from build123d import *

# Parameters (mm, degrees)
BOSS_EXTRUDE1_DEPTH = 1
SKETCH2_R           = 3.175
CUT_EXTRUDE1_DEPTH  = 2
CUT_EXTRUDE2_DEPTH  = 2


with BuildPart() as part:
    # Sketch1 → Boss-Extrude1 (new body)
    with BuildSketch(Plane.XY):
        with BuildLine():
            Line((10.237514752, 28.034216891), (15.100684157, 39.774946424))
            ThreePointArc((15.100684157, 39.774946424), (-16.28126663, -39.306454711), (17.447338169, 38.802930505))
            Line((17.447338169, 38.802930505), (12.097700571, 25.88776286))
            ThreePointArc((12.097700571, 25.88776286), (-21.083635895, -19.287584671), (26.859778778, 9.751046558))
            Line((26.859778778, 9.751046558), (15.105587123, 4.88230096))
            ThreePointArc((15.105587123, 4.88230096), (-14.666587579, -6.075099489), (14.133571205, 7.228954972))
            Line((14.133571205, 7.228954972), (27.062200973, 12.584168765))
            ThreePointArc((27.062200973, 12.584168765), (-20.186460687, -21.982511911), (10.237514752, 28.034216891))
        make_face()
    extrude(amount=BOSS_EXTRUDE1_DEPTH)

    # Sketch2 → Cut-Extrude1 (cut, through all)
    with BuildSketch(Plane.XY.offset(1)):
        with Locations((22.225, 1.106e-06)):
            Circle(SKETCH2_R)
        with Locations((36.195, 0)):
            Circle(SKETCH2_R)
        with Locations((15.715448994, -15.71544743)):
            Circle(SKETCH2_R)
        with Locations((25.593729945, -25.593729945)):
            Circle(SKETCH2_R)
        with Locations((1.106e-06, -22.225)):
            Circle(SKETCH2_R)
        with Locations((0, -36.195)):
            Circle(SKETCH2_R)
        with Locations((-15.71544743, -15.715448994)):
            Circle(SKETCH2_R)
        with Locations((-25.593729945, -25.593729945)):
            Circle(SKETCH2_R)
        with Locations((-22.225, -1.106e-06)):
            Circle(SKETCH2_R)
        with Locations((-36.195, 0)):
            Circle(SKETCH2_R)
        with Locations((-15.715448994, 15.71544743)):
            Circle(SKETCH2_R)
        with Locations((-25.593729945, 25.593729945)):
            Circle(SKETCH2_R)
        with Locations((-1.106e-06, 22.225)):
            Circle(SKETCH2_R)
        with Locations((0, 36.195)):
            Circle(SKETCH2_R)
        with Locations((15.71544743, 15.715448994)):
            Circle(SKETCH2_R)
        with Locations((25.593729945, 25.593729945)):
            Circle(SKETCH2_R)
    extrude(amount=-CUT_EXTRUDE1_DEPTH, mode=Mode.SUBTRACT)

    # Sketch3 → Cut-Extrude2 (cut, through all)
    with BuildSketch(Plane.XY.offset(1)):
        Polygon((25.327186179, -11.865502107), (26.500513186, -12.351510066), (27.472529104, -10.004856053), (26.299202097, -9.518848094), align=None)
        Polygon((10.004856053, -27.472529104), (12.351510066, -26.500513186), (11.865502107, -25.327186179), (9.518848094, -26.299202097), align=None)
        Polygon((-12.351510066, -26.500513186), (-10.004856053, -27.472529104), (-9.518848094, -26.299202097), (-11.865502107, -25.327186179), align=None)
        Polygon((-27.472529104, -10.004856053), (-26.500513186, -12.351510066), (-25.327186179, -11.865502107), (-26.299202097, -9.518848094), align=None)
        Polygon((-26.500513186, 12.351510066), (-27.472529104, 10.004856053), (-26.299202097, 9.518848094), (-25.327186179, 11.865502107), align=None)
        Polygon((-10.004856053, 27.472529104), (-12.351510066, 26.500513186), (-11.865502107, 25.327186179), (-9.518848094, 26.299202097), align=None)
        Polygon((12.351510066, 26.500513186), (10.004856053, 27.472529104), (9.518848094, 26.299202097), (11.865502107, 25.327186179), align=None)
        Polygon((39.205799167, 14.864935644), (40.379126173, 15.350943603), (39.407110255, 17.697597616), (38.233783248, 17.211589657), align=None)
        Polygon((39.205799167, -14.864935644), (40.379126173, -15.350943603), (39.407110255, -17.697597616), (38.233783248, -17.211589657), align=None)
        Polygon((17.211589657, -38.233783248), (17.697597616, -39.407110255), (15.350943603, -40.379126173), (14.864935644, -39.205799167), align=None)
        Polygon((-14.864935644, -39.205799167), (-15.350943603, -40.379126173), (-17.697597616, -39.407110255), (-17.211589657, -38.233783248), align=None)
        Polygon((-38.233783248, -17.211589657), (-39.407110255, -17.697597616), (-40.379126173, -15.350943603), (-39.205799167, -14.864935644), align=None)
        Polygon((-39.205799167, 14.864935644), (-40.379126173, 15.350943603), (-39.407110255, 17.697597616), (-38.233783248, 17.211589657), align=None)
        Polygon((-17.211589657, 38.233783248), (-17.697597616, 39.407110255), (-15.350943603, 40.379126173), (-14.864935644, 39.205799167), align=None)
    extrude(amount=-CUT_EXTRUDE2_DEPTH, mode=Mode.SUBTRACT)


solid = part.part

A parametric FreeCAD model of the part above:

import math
import FreeCAD as App
import Part
import Sketcher

V = App.Vector
Q = App.Units.Quantity

doc = App.newDocument("Part")
body = doc.addObject("PartDesign::Body", "Body")

# Sketch on XY plane
sketch1 = body.newObject("Sketcher::SketchObject", "Sketch")
sketch1.AttachmentSupport = (doc.getObject("XY_Plane"), [""])
sketch1.MapMode = "FlatFace"
sketch1.addGeometry([
    Part.LineSegment(V(10.2, 28, 0), V(15.1, 39.8, 0)),  # 0
    Part.ArcOfCircle(Part.Circle(V(0, 0, 0), V(0, 0, 1), 42.5), math.radians(69), math.radians(426)),  # 1
    Part.LineSegment(V(17.4, 38.8, 0), V(12.1, 25.9, 0)),  # 2
    Part.ArcOfCircle(Part.Circle(V(0, 0, 0), V(0, 0, 1), 28.6), math.radians(65), math.radians(380)),  # 3
    Part.LineSegment(V(26.9, 9.8, 0), V(15.1, 4.9, 0)),  # 4
    Part.ArcOfCircle(Part.Circle(V(0, 0, 0), V(0, 0, 1), 15.9), math.radians(27), math.radians(378)),  # 5
    Part.LineSegment(V(14.1, 7.2, 0), V(27.1, 12.6, 0)),  # 6
    Part.ArcOfCircle(Part.Circle(V(0, 0, 0), V(0, 0, 1), 29.8), math.radians(70), math.radians(385)),  # 7
], False)
sketch1.addConstraint([
    Sketcher.Constraint("Coincident", 0, 2, 1, 1),
    Sketcher.Constraint("Coincident", 1, 2, 2, 1),
    Sketcher.Constraint("Coincident", 2, 2, 3, 1),
    Sketcher.Constraint("Coincident", 3, 2, 4, 1),
    Sketcher.Constraint("Coincident", 4, 2, 5, 2),
    Sketcher.Constraint("Coincident", 5, 1, 6, 1),
    Sketcher.Constraint("Coincident", 6, 2, 7, 2),
    Sketcher.Constraint("Coincident", 7, 1, 0, 1),
    Sketcher.Constraint("Coincident", 1, 3, -1, 1),
    Sketcher.Constraint("Coincident", 3, 3, -1, 1),
    Sketcher.Constraint("Coincident", 5, 3, -1, 1),
    Sketcher.Constraint("Coincident", 7, 3, -1, 1),
    Sketcher.Constraint("Parallel", 0, 2),
    Sketcher.Constraint("Parallel", 4, 6),
    Sketcher.Constraint("Radius", 1, Q("1.675 in")),
    Sketcher.Constraint("Radius", 3, Q("1.125 in")),
    Sketcher.Constraint("Radius", 5, Q("0.625 in")),
    Sketcher.Constraint("Radius", 7, Q("1.175 in")),
    Sketcher.Constraint("Angle", 0, Q("67.5 deg")),
    Sketcher.Constraint("Angle", 4, Q("-157.5 deg")),
    Sketcher.Constraint("DistanceX", -1, 1, 2, 2, 12.097701),
    Sketcher.Constraint("DistanceY", -1, 1, 4, 2, 4.882301),
    Sketcher.Constraint("DistanceX", -1, 1, 6, 2, 27.062201),
    Sketcher.Constraint("DistanceY", 5, 1, 7, 1, 20.805262),
])
pad1 = body.newObject("PartDesign::Pad", "Pad")
pad1.Profile = sketch1
pad1.Length = 1

# Sketch on XY plane
sketch2 = body.newObject("Sketcher::SketchObject", "Sketch001")
sketch2.AttachmentSupport = (doc.getObject("XY_Plane"), [""])
sketch2.MapMode = "FlatFace"
sketch2.AttachmentOffset = App.Placement(V(0, 0, 1), App.Rotation())
sketch2.addGeometry([
    Part.Circle(V(22.2, 0, 0), V(0, 0, 1), 3.2),  # 0
    Part.Circle(V(36.2, 0, 0), V(0, 0, 1), 3.2),  # 1
    Part.Circle(V(15.7, -15.7, 0), V(0, 0, 1), 3.2),  # 2
    Part.Circle(V(25.6, -25.6, 0), V(0, 0, 1), 3.2),  # 3
    Part.Circle(V(0, -22.2, 0), V(0, 0, 1), 3.2),  # 4
    Part.Circle(V(0, -36.2, 0), V(0, 0, 1), 3.2),  # 5
    Part.Circle(V(-15.7, -15.7, 0), V(0, 0, 1), 3.2),  # 6
    Part.Circle(V(-25.6, -25.6, 0), V(0, 0, 1), 3.2),  # 7
    Part.Circle(V(-22.2, 0, 0), V(0, 0, 1), 3.2),  # 8
    Part.Circle(V(-36.2, 0, 0), V(0, 0, 1), 3.2),  # 9
    Part.Circle(V(-15.7, 15.7, 0), V(0, 0, 1), 3.2),  # 10
    Part.Circle(V(-25.6, 25.6, 0), V(0, 0, 1), 3.2),  # 11
    Part.Circle(V(0, 22.2, 0), V(0, 0, 1), 3.2),  # 12
    Part.Circle(V(0, 36.2, 0), V(0, 0, 1), 3.2),  # 13
    Part.Circle(V(15.7, 15.7, 0), V(0, 0, 1), 3.2),  # 14
    Part.Circle(V(25.6, 25.6, 0), V(0, 0, 1), 3.2),  # 15
], False)
sketch2.addConstraint([
    Sketcher.Constraint("Equal", 0, 1),
    Sketcher.Constraint("Equal", 1, 2),
    Sketcher.Constraint("Equal", 2, 3),
    Sketcher.Constraint("Equal", 3, 4),
    Sketcher.Constraint("Equal", 4, 5),
    Sketcher.Constraint("Equal", 5, 6),
    Sketcher.Constraint("Equal", 6, 7),
    Sketcher.Constraint("Equal", 7, 8),
    Sketcher.Constraint("Equal", 8, 9),
    Sketcher.Constraint("Equal", 9, 10),
    Sketcher.Constraint("Equal", 10, 11),
    Sketcher.Constraint("Equal", 11, 12),
    Sketcher.Constraint("Equal", 12, 13),
    Sketcher.Constraint("Equal", 13, 14),
    Sketcher.Constraint("Equal", 14, 15),
    Sketcher.Constraint("Symmetric", 0, 3, 8, 3, -1, 1),
    Sketcher.Constraint("Symmetric", 1, 3, 9, 3, -1, 1),
    Sketcher.Constraint("Symmetric", 2, 3, 10, 3, -1, 1),
    Sketcher.Constraint("Symmetric", 3, 3, 11, 3, -1, 1),
    Sketcher.Constraint("Symmetric", 4, 3, 12, 3, -1, 1),
    Sketcher.Constraint("Symmetric", 5, 3, 13, 3, -1, 1),
    Sketcher.Constraint("Symmetric", 6, 3, 14, 3, -1, 1),
    Sketcher.Constraint("Symmetric", 7, 3, 15, 3, -1, 1),
    Sketcher.Constraint("Symmetric", 2, 3, 6, 3, -2),
    Sketcher.Constraint("Symmetric", 3, 3, 7, 3, -2),
    Sketcher.Constraint("PointOnObject", 0, 3, -1),
    Sketcher.Constraint("PointOnObject", 1, 3, -1),
    Sketcher.Constraint("PointOnObject", 4, 3, -2),
    Sketcher.Constraint("PointOnObject", 5, 3, -2),
    Sketcher.Constraint("Diameter", 0, Q("0.25 in")),
    Sketcher.Constraint("DistanceX", 0, 3, 1, 3, Q("0.55 in")),
    Sketcher.Constraint("DistanceY", 5, 3, 4, 3, Q("0.55 in")),
    Sketcher.Constraint("DistanceX", -1, 1, 0, 3, Q("0.875 in")),
    Sketcher.Constraint("DistanceY", 4, 3, -1, 1, Q("0.875 in")),
    Sketcher.Constraint("DistanceX", -1, 1, 2, 3, 15.715449),
    Sketcher.Constraint("DistanceX", -1, 1, 3, 3, 25.59373),
    Sketcher.Constraint("DistanceY", 3, 3, -1, 1, 25.59373),
    Sketcher.Constraint("DistanceY", 6, 3, -1, 1, 15.715449),
])
pocket1 = body.newObject("PartDesign::Pocket", "Pocket")
pocket1.Profile = sketch2
pocket1.Type = "ThroughAll"

# Sketch on XY plane
sketch3 = body.newObject("Sketcher::SketchObject", "Sketch002")
sketch3.AttachmentSupport = (doc.getObject("XY_Plane"), [""])
sketch3.MapMode = "FlatFace"
sketch3.AttachmentOffset = App.Placement(V(0, 0, 1), App.Rotation())
sketch3.addGeometry([
    Part.LineSegment(V(25.3, -11.9, 0), V(26.5, -12.4, 0)),  # 0
    Part.LineSegment(V(26.5, -12.4, 0), V(27.5, -10, 0)),  # 1
    Part.LineSegment(V(27.5, -10, 0), V(26.3, -9.5, 0)),  # 2
    Part.LineSegment(V(26.3, -9.5, 0), V(25.3, -11.9, 0)),  # 3
    Part.LineSegment(V(10, -27.5, 0), V(12.4, -26.5, 0)),  # 4
    Part.LineSegment(V(12.4, -26.5, 0), V(11.9, -25.3, 0)),  # 5
    Part.LineSegment(V(11.9, -25.3, 0), V(9.5, -26.3, 0)),  # 6
    Part.LineSegment(V(9.5, -26.3, 0), V(10, -27.5, 0)),  # 7
    Part.LineSegment(V(-12.4, -26.5, 0), V(-10, -27.5, 0)),  # 8
    Part.LineSegment(V(-10, -27.5, 0), V(-9.5, -26.3, 0)),  # 9
    Part.LineSegment(V(-9.5, -26.3, 0), V(-11.9, -25.3, 0)),  # 10
    Part.LineSegment(V(-11.9, -25.3, 0), V(-12.4, -26.5, 0)),  # 11
    Part.LineSegment(V(-27.5, -10, 0), V(-26.5, -12.4, 0)),  # 12
    Part.LineSegment(V(-26.5, -12.4, 0), V(-25.3, -11.9, 0)),  # 13
    Part.LineSegment(V(-25.3, -11.9, 0), V(-26.3, -9.5, 0)),  # 14
    Part.LineSegment(V(-26.3, -9.5, 0), V(-27.5, -10, 0)),  # 15
    Part.LineSegment(V(-26.5, 12.4, 0), V(-27.5, 10, 0)),  # 16
    Part.LineSegment(V(-27.5, 10, 0), V(-26.3, 9.5, 0)),  # 17
    Part.LineSegment(V(-26.3, 9.5, 0), V(-25.3, 11.9, 0)),  # 18
    Part.LineSegment(V(-25.3, 11.9, 0), V(-26.5, 12.4, 0)),  # 19
    Part.LineSegment(V(-10, 27.5, 0), V(-12.4, 26.5, 0)),  # 20
    Part.LineSegment(V(-12.4, 26.5, 0), V(-11.9, 25.3, 0)),  # 21
    Part.LineSegment(V(-11.9, 25.3, 0), V(-9.5, 26.3, 0)),  # 22
    Part.LineSegment(V(-9.5, 26.3, 0), V(-10, 27.5, 0)),  # 23
    Part.LineSegment(V(12.4, 26.5, 0), V(10, 27.5, 0)),  # 24
    Part.LineSegment(V(10, 27.5, 0), V(9.5, 26.3, 0)),  # 25
    Part.LineSegment(V(9.5, 26.3, 0), V(11.9, 25.3, 0)),  # 26
    Part.LineSegment(V(11.9, 25.3, 0), V(12.4, 26.5, 0)),  # 27
    Part.LineSegment(V(39.2, 14.9, 0), V(40.4, 15.4, 0)),  # 28
    Part.LineSegment(V(40.4, 15.4, 0), V(39.4, 17.7, 0)),  # 29
    Part.LineSegment(V(39.4, 17.7, 0), V(38.2, 17.2, 0)),  # 30
    Part.LineSegment(V(38.2, 17.2, 0), V(39.2, 14.9, 0)),  # 31
    Part.LineSegment(V(40.4, -15.4, 0), V(39.2, -14.9, 0)),  # 32
    Part.LineSegment(V(39.2, -14.9, 0), V(38.2, -17.2, 0)),  # 33
    Part.LineSegment(V(38.2, -17.2, 0), V(39.4, -17.7, 0)),  # 34
    Part.LineSegment(V(39.4, -17.7, 0), V(40.4, -15.4, 0)),  # 35
    Part.LineSegment(V(17.7, -39.4, 0), V(17.2, -38.2, 0)),  # 36
    Part.LineSegment(V(17.2, -38.2, 0), V(14.9, -39.2, 0)),  # 37
    Part.LineSegment(V(14.9, -39.2, 0), V(15.4, -40.4, 0)),  # 38
    Part.LineSegment(V(15.4, -40.4, 0), V(17.7, -39.4, 0)),  # 39
    Part.LineSegment(V(-15.4, -40.4, 0), V(-14.9, -39.2, 0)),  # 40
    Part.LineSegment(V(-14.9, -39.2, 0), V(-17.2, -38.2, 0)),  # 41
    Part.LineSegment(V(-17.2, -38.2, 0), V(-17.7, -39.4, 0)),  # 42
    Part.LineSegment(V(-17.7, -39.4, 0), V(-15.4, -40.4, 0)),  # 43
    Part.LineSegment(V(-39.4, -17.7, 0), V(-38.2, -17.2, 0)),  # 44
    Part.LineSegment(V(-38.2, -17.2, 0), V(-39.2, -14.9, 0)),  # 45
    Part.LineSegment(V(-39.2, -14.9, 0), V(-40.4, -15.4, 0)),  # 46
    Part.LineSegment(V(-40.4, -15.4, 0), V(-39.4, -17.7, 0)),  # 47
    Part.LineSegment(V(-40.4, 15.4, 0), V(-39.2, 14.9, 0)),  # 48
    Part.LineSegment(V(-39.2, 14.9, 0), V(-38.2, 17.2, 0)),  # 49
    Part.LineSegment(V(-38.2, 17.2, 0), V(-39.4, 17.7, 0)),  # 50
    Part.LineSegment(V(-39.4, 17.7, 0), V(-40.4, 15.4, 0)),  # 51
    Part.LineSegment(V(-17.7, 39.4, 0), V(-17.2, 38.2, 0)),  # 52
    Part.LineSegment(V(-17.2, 38.2, 0), V(-14.9, 39.2, 0)),  # 53
    Part.LineSegment(V(-14.9, 39.2, 0), V(-15.4, 40.4, 0)),  # 54
    Part.LineSegment(V(-15.4, 40.4, 0), V(-17.7, 39.4, 0)),  # 55
], False)
sketch3.addConstraint([
    Sketcher.Constraint("Coincident", 0, 2, 1, 1),
    Sketcher.Constraint("Coincident", 1, 2, 2, 1),
    Sketcher.Constraint("Coincident", 2, 2, 3, 1),
    Sketcher.Constraint("Coincident", 3, 2, 0, 1),
    Sketcher.Constraint("Coincident", 4, 2, 5, 1),
    Sketcher.Constraint("Coincident", 5, 2, 6, 1),
    Sketcher.Constraint("Coincident", 6, 2, 7, 1),
    Sketcher.Constraint("Coincident", 7, 2, 4, 1),
    Sketcher.Constraint("Coincident", 8, 2, 9, 1),
    Sketcher.Constraint("Coincident", 9, 2, 10, 1),
    Sketcher.Constraint("Coincident", 10, 2, 11, 1),
    Sketcher.Constraint("Coincident", 11, 2, 8, 1),
    Sketcher.Constraint("Coincident", 12, 2, 13, 1),
    Sketcher.Constraint("Coincident", 13, 2, 14, 1),
    Sketcher.Constraint("Coincident", 14, 2, 15, 1),
    Sketcher.Constraint("Coincident", 15, 2, 12, 1),
    Sketcher.Constraint("Coincident", 16, 2, 17, 1),
    Sketcher.Constraint("Coincident", 17, 2, 18, 1),
    Sketcher.Constraint("Coincident", 18, 2, 19, 1),
    Sketcher.Constraint("Coincident", 19, 2, 16, 1),
    Sketcher.Constraint("Coincident", 20, 2, 21, 1),
    Sketcher.Constraint("Coincident", 21, 2, 22, 1),
    Sketcher.Constraint("Coincident", 22, 2, 23, 1),
    Sketcher.Constraint("Coincident", 23, 2, 20, 1),
    Sketcher.Constraint("Coincident", 24, 2, 25, 1),
    Sketcher.Constraint("Coincident", 25, 2, 26, 1),
    Sketcher.Constraint("Coincident", 26, 2, 27, 1),
    Sketcher.Constraint("Coincident", 27, 2, 24, 1),
    Sketcher.Constraint("Coincident", 28, 2, 29, 1),
    Sketcher.Constraint("Coincident", 29, 2, 30, 1),
    Sketcher.Constraint("Coincident", 30, 2, 31, 1),
    Sketcher.Constraint("Coincident", 31, 2, 28, 1),
    Sketcher.Constraint("Coincident", 32, 2, 33, 1),
    Sketcher.Constraint("Coincident", 33, 2, 34, 1),
    Sketcher.Constraint("Coincident", 34, 2, 35, 1),
    Sketcher.Constraint("Coincident", 35, 2, 32, 1),
    Sketcher.Constraint("Coincident", 36, 2, 37, 1),
    Sketcher.Constraint("Coincident", 37, 2, 38, 1),
    Sketcher.Constraint("Coincident", 38, 2, 39, 1),
    Sketcher.Constraint("Coincident", 39, 2, 36, 1),
    Sketcher.Constraint("Coincident", 40, 2, 41, 1),
    Sketcher.Constraint("Coincident", 41, 2, 42, 1),
    Sketcher.Constraint("Coincident", 42, 2, 43, 1),
    Sketcher.Constraint("Coincident", 43, 2, 40, 1),
    Sketcher.Constraint("Coincident", 44, 2, 45, 1),
    Sketcher.Constraint("Coincident", 45, 2, 46, 1),
    Sketcher.Constraint("Coincident", 46, 2, 47, 1),
    Sketcher.Constraint("Coincident", 47, 2, 44, 1),
    Sketcher.Constraint("Coincident", 48, 2, 49, 1),
    Sketcher.Constraint("Coincident", 49, 2, 50, 1),
    Sketcher.Constraint("Coincident", 50, 2, 51, 1),
    Sketcher.Constraint("Coincident", 51, 2, 48, 1),
    Sketcher.Constraint("Coincident", 52, 2, 53, 1),
    Sketcher.Constraint("Coincident", 53, 2, 54, 1),
    Sketcher.Constraint("Coincident", 54, 2, 55, 1),
    Sketcher.Constraint("Coincident", 55, 2, 52, 1),
    Sketcher.Constraint("Symmetric", 1, 2, 16, 2, -1, 1),
    Sketcher.Constraint("Symmetric", 2, 2, 17, 2, -1, 1),
    Sketcher.Constraint("Symmetric", 3, 2, 18, 2, -1, 1),
    Sketcher.Constraint("Symmetric", 0, 2, 19, 2, -1, 1),
    Sketcher.Constraint("Symmetric", 4, 2, 20, 2, -1, 1),
    Sketcher.Constraint("Symmetric", 5, 2, 21, 2, -1, 1),
    Sketcher.Constraint("Symmetric", 6, 2, 22, 2, -1, 1),
    Sketcher.Constraint("Symmetric", 7, 2, 23, 2, -1, 1),
    Sketcher.Constraint("Symmetric", 8, 2, 24, 2, -1, 1),
    Sketcher.Constraint("Symmetric", 9, 2, 25, 2, -1, 1),
    Sketcher.Constraint("Symmetric", 10, 2, 26, 2, -1, 1),
    Sketcher.Constraint("Symmetric", 11, 2, 27, 2, -1, 1),
    Sketcher.Constraint("Symmetric", 30, 2, 44, 2, -1, 1),
    Sketcher.Constraint("Symmetric", 31, 2, 45, 2, -1, 1),
    Sketcher.Constraint("Symmetric", 28, 2, 46, 2, -1, 1),
    Sketcher.Constraint("Symmetric", 29, 2, 47, 2, -1, 1),
    Sketcher.Constraint("Symmetric", 32, 2, 48, 2, -1, 1),
    Sketcher.Constraint("Symmetric", 33, 2, 49, 2, -1, 1),
    Sketcher.Constraint("Symmetric", 34, 2, 50, 2, -1, 1),
    Sketcher.Constraint("Symmetric", 35, 2, 51, 2, -1, 1),
    Sketcher.Constraint("Symmetric", 36, 2, 52, 2, -1, 1),
    Sketcher.Constraint("Symmetric", 37, 2, 53, 2, -1, 1),
    Sketcher.Constraint("Symmetric", 38, 2, 54, 2, -1, 1),
    Sketcher.Constraint("Symmetric", 39, 2, 55, 2, -1, 1),
    Sketcher.Constraint("Symmetric", 7, 2, 8, 2, -2),
    Sketcher.Constraint("Symmetric", 6, 2, 9, 2, -2),
    Sketcher.Constraint("Symmetric", 5, 2, 10, 2, -2),
    Sketcher.Constraint("Symmetric", 4, 2, 11, 2, -2),
    Sketcher.Constraint("Symmetric", 0, 2, 12, 2, -2),
    Sketcher.Constraint("Symmetric", 3, 2, 13, 2, -2),
    Sketcher.Constraint("Symmetric", 2, 2, 14, 2, -2),
    Sketcher.Constraint("Symmetric", 1, 2, 15, 2, -2),
    Sketcher.Constraint("Symmetric", 37, 2, 40, 2, -2),
    Sketcher.Constraint("Symmetric", 36, 2, 41, 2, -2),
    Sketcher.Constraint("Symmetric", 39, 2, 42, 2, -2),
    Sketcher.Constraint("Symmetric", 38, 2, 43, 2, -2),
    Sketcher.Constraint("Symmetric", 33, 2, 44, 2, -2),
    Sketcher.Constraint("Symmetric", 32, 2, 45, 2, -2),
    Sketcher.Constraint("Symmetric", 35, 2, 46, 2, -2),
    Sketcher.Constraint("Symmetric", 34, 2, 47, 2, -2),
    Sketcher.Constraint("Perpendicular", 0, 1),
    Sketcher.Constraint("Perpendicular", 1, 2),
    Sketcher.Constraint("Perpendicular", 2, 3),
    Sketcher.Constraint("Perpendicular", 4, 5),
    Sketcher.Constraint("Perpendicular", 5, 6),
    Sketcher.Constraint("Perpendicular", 6, 7),
    Sketcher.Constraint("Perpendicular", 3, 8),
    Sketcher.Constraint("Perpendicular", 23, 28),
    Sketcher.Constraint("Perpendicular", 28, 29),
    Sketcher.Constraint("Perpendicular", 29, 30),
    Sketcher.Constraint("Perpendicular", 30, 31),
    Sketcher.Constraint("Parallel", 31, 36),
    Sketcher.Constraint("Perpendicular", 36, 37),
    Sketcher.Constraint("Perpendicular", 37, 38),
    Sketcher.Constraint("Perpendicular", 38, 39),
    Sketcher.Constraint("Equal", 3, 4),
    Sketcher.Constraint("Equal", 2, 5),
    Sketcher.Constraint("Equal", 27, 28),
    Sketcher.Constraint("Equal", 26, 29),
    Sketcher.Constraint("Equal", 34, 36),
    Sketcher.Constraint("Equal", 35, 37),
    Sketcher.Constraint("Distance", 1, Q("0.1 in")),
    Sketcher.Constraint("Angle", 0, Q("-22.5 deg")),
    Sketcher.Constraint("Distance", 0, Q("0.05 in")),
    Sketcher.Constraint("DistanceX", -1, 1, 31, 2, 39.205799),
    Sketcher.Constraint("DistanceY", 37, 2, -1, 1, 39.205799),
    Sketcher.Constraint("DistanceX", 5, 2, 2, 2, 14.4337),
    Sketcher.Constraint("DistanceY", 6, 2, 3, 2, 14.4337),
    Sketcher.Constraint("DistanceY", 1, 2, 28, 2, 25.3558),
    Sketcher.Constraint("DistanceX", 27, 2, 29, 2, 27.0556),
    Sketcher.Constraint("DistanceY", 0, 2, -1, 1, 12.35151),
    Sketcher.Constraint("DistanceX", -1, 1, 36, 2, 17.21159),
])
pocket2 = body.newObject("PartDesign::Pocket", "Pocket001")
pocket2.Profile = sketch3
pocket2.Type = "ThroughAll"

doc.recompute()
